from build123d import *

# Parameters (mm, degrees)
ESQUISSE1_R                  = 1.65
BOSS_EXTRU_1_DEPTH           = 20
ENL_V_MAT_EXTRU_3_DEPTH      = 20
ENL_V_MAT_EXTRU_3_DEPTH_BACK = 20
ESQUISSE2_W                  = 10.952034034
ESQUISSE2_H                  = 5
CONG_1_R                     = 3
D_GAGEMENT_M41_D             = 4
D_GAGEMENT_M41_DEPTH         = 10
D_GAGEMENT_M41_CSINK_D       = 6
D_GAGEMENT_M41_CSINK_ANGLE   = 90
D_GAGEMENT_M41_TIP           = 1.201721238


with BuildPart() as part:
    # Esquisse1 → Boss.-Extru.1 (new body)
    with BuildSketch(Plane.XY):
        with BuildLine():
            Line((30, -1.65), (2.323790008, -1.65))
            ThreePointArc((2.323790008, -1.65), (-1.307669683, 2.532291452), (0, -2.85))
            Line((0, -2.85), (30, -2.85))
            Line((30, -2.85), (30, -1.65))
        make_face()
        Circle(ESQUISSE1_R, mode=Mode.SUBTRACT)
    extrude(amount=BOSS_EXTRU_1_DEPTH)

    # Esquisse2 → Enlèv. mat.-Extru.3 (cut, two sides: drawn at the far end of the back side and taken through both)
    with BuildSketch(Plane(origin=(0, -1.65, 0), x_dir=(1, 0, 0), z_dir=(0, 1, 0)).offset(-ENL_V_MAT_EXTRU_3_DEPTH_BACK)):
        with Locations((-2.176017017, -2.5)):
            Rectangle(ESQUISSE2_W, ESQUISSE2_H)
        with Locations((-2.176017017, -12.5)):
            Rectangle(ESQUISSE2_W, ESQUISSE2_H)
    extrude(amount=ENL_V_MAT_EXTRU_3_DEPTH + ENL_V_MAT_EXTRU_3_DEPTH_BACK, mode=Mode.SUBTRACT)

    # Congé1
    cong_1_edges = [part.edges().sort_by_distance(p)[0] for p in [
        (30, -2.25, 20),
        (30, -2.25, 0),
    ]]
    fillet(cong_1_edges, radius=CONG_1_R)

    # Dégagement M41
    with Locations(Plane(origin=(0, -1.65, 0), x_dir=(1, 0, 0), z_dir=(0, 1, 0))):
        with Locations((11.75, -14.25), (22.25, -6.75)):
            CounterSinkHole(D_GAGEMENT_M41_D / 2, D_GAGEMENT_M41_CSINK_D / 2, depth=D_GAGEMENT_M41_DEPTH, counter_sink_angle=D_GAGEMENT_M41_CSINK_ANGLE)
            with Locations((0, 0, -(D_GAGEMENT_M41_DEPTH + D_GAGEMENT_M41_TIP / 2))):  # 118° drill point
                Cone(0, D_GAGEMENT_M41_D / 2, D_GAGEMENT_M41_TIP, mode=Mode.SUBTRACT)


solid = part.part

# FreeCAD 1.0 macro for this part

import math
import FreeCAD as App
import Part
import Sketcher
from FreeCAD import Vector
Q = App.Units.Quantity


def edges_at(feature, points):
    """Names of the edges that pass closest to the given points."""
    edges = feature.Shape.Edges
    near = lambda p: min(range(len(edges)), key=lambda i: edges[i].distToShape(Part.Vertex(*p))[0])
    return sorted({f"Edge{near(p) + 1}" for p in points})


def add_polygon(sketch, points):
    """Adds a closed chain of lines whose ends are joined by coincident constraints."""
    first, n = sketch.GeometryCount, len(points)
    for a, b in zip(points, points[1:] + points[:1]):
        sketch.addGeometry(Part.LineSegment(App.Vector(*a, 0), App.Vector(*b, 0)), False)
    for i in range(n):
        sketch.addConstraint(Sketcher.Constraint("Coincident", first + i, 2, first + (i + 1) % n, 1))

doc = App.newDocument("Part")
params = doc.addObject("Spreadsheet::Sheet", "Params")
for row, (alias, value) in enumerate([
    ("sketch1_diameter", "3.3 mm"),
    ("sketch1_width", "30 mm"),
    ("sketch1_radius", "2.85 mm"),
    ("sketch1_height", "1.2 mm"),
    ("pad1_length", "20 mm"),
    ("sketch2_height", "5 mm"),
    ("fillet_radius", "3 mm"),
    ("sketch3_diameter", "4 mm"),
    ("hole_diameter", "4 mm"),
    ("hole_depth", "10 mm"),
    ("hole_csink_diameter", "6 mm"),
], start=1):
    params.set(f"A{row}", alias)
    params.set(f"B{row}", "=" + value)
    params.setAlias(f"B{row}", alias)

body = doc.addObject("PartDesign::Body", "Body")

# Sketch on XY plane
sketch1 = body.newObject("Sketcher::SketchObject", "Sketch")
sketch1.AttachmentSupport = (doc.getObject("XY_Plane"), [""])
sketch1.MapMode = "FlatFace"
sketch1.addGeometry([
    Part.LineSegment(Vector(30, -1.6, 0), Vector(2.3, -1.6, 0)),  # 0
    Part.ArcOfCircle(Part.Circle(Vector(0, 0, 0), Vector(0, 0, 1), 2.9), math.radians(-35), math.radians(270)),  # 1
    Part.LineSegment(Vector(0, -2.9, 0), Vector(30, -2.9, 0)),  # 2
    Part.LineSegment(Vector(30, -2.9, 0), Vector(30, -1.6, 0)),  # 3
    Part.Circle(Vector(0, 0, 0), Vector(0, 0, 1), 1.6),  # 4
], False)
sketch1.addConstraint([
    Sketcher.Constraint("Coincident", 0, 2, 1, 1),
    Sketcher.Constraint("Tangent", 1, 2, 2, 1),
    Sketcher.Constraint("Coincident", 2, 2, 3, 1),
    Sketcher.Constraint("Coincident", 3, 2, 0, 1),
    Sketcher.Constraint("Horizontal", 0),
    Sketcher.Constraint("Horizontal", 2),
    Sketcher.Constraint("Vertical", 3),
    Sketcher.Constraint("Coincident", 1, 3, -1, 1),
    Sketcher.Constraint("Coincident", 4, 3, -1, 1),
    Sketcher.Constraint("Diameter", 4, Q("3.3 mm")),
    Sketcher.Constraint("DistanceX", 2, 1, 2, 2, Q("30 mm")),
    Sketcher.Constraint("Radius", 1, Q("2.85 mm")),
    Sketcher.Constraint("DistanceY", 3, 1, 3, 2, Q("1.2 mm")),
])
sketch1.setExpression("Constraints[9]", "Params.sketch1_diameter")
sketch1.setExpression("Constraints[10]", "Params.sketch1_width")
sketch1.setExpression("Constraints[11]", "Params.sketch1_radius")
sketch1.setExpression("Constraints[12]", "Params.sketch1_height")
pad1 = body.newObject("PartDesign::Pad", "Pad")
pad1.Profile = sketch1
pad1.setExpression("Length", "Params.pad1_length")

# Sketch on XZ plane
sketch2 = body.newObject("Sketcher::SketchObject", "Sketch001")
sketch2.AttachmentSupport = (doc.getObject("XZ_Plane"), [""])
sketch2.MapMode = "FlatFace"
sketch2.AttachmentOffset = App.Placement(Vector(0, 0, 1.65), App.Rotation())
add_polygon(sketch2, [(-8, 0), (-8, 5), (3, 5), (3, 0)])  # lines 0-3
add_polygon(sketch2, [(-8, 10), (-8, 15), (3, 15), (3, 10)])  # lines 4-7
sketch2.addConstraint([
    Sketcher.Constraint("Vertical", 0),
    Sketcher.Constraint("Horizontal", 1),
    Sketcher.Constraint("Vertical", 2),
    Sketcher.Constraint("Horizontal", 3),
    Sketcher.Constraint("Vertical", 4),
    Sketcher.Constraint("Horizontal", 5),
    Sketcher.Constraint("Vertical", 6),
    Sketcher.Constraint("Horizontal", 7),
    Sketcher.Constraint("PointOnObject", 2, 2, -1),
    Sketcher.Constraint("Vertical", 3, 2, 4, 2),
    Sketcher.Constraint("Vertical", 2, 2, 5, 2),
    Sketcher.Constraint("Equal", 2, 4),
    Sketcher.Constraint("DistanceY", 0, 1, 0, 2, Q("5 mm")),
    Sketcher.Constraint("DistanceY", -1, 1, 4, 2, Q("15 mm")),
    Sketcher.Constraint("DistanceX", -1, 1, 1, 2, Q("3.3 mm")),
    Sketcher.Constraint("DistanceX", 1, 1, 1, 2, Q("10.952034 mm")),
])
sketch2.setExpression("Constraints[20]", "Params.sketch2_height")
pocket1 = body.newObject("PartDesign::Pocket", "Pocket")
pocket1.Profile = sketch2
pocket1.Type = "ThroughAll"
pocket1.Midplane = True
doc.recompute()

fillet = body.newObject("PartDesign::Fillet", "Fillet")
fillet.Base = (pocket1, edges_at(pocket1, [(30, -2.25, 20), (30, -2.25, 0)]))
fillet.setExpression("Radius", "Params.fillet_radius")

# Sketch on XZ plane
sketch3 = body.newObject("Sketcher::SketchObject", "Sketch002")
sketch3.AttachmentSupport = (doc.getObject("XZ_Plane"), [""])
sketch3.MapMode = "FlatFace"
sketch3.AttachmentOffset = App.Placement(Vector(0, 0, 1.65), App.Rotation())
sketch3.addGeometry([
    Part.Circle(Vector(11.8, 14.2, 0), Vector(0, 0, 1), 2),
    Part.Circle(Vector(22.2, 6.8, 0), Vector(0, 0, 1), 2),
], False)
sketch3.addConstraint([
    Sketcher.Constraint("Equal", 0, 1),
    Sketcher.Constraint("Diameter", 0, Q("4 mm")),
    Sketcher.Constraint("DistanceX", 0, 3, 1, 3, Q("10.5 mm")),
    Sketcher.Constraint("DistanceY", 1, 3, 0, 3, Q("7.5 mm")),
    Sketcher.Constraint("DistanceX", -1, 1, 0, 3, Q("11.75 mm")),
    Sketcher.Constraint("DistanceY", -1, 1, 0, 3, Q("14.25 mm")),
])
sketch3.setExpression("Constraints[1]", "Params.sketch3_diameter")
doc.recompute()
hole = body.newObject("PartDesign::Hole", "Hole")
hole.Profile = sketch3
hole.ThreadType = "None"
hole.setExpression("Diameter", "Params.hole_diameter")
hole.DepthType = "Dimension"
hole.setExpression("Depth", "Params.hole_depth")
hole.DrillPoint = "Angled"
hole.DrillPointAngle = 118
hole.HoleCutType = "Countersink"
hole.setExpression("HoleCutDiameter", "Params.hole_csink_diameter")
hole.HoleCutCountersinkAngle = 90
hole.Reversed = True

doc.recompute()
